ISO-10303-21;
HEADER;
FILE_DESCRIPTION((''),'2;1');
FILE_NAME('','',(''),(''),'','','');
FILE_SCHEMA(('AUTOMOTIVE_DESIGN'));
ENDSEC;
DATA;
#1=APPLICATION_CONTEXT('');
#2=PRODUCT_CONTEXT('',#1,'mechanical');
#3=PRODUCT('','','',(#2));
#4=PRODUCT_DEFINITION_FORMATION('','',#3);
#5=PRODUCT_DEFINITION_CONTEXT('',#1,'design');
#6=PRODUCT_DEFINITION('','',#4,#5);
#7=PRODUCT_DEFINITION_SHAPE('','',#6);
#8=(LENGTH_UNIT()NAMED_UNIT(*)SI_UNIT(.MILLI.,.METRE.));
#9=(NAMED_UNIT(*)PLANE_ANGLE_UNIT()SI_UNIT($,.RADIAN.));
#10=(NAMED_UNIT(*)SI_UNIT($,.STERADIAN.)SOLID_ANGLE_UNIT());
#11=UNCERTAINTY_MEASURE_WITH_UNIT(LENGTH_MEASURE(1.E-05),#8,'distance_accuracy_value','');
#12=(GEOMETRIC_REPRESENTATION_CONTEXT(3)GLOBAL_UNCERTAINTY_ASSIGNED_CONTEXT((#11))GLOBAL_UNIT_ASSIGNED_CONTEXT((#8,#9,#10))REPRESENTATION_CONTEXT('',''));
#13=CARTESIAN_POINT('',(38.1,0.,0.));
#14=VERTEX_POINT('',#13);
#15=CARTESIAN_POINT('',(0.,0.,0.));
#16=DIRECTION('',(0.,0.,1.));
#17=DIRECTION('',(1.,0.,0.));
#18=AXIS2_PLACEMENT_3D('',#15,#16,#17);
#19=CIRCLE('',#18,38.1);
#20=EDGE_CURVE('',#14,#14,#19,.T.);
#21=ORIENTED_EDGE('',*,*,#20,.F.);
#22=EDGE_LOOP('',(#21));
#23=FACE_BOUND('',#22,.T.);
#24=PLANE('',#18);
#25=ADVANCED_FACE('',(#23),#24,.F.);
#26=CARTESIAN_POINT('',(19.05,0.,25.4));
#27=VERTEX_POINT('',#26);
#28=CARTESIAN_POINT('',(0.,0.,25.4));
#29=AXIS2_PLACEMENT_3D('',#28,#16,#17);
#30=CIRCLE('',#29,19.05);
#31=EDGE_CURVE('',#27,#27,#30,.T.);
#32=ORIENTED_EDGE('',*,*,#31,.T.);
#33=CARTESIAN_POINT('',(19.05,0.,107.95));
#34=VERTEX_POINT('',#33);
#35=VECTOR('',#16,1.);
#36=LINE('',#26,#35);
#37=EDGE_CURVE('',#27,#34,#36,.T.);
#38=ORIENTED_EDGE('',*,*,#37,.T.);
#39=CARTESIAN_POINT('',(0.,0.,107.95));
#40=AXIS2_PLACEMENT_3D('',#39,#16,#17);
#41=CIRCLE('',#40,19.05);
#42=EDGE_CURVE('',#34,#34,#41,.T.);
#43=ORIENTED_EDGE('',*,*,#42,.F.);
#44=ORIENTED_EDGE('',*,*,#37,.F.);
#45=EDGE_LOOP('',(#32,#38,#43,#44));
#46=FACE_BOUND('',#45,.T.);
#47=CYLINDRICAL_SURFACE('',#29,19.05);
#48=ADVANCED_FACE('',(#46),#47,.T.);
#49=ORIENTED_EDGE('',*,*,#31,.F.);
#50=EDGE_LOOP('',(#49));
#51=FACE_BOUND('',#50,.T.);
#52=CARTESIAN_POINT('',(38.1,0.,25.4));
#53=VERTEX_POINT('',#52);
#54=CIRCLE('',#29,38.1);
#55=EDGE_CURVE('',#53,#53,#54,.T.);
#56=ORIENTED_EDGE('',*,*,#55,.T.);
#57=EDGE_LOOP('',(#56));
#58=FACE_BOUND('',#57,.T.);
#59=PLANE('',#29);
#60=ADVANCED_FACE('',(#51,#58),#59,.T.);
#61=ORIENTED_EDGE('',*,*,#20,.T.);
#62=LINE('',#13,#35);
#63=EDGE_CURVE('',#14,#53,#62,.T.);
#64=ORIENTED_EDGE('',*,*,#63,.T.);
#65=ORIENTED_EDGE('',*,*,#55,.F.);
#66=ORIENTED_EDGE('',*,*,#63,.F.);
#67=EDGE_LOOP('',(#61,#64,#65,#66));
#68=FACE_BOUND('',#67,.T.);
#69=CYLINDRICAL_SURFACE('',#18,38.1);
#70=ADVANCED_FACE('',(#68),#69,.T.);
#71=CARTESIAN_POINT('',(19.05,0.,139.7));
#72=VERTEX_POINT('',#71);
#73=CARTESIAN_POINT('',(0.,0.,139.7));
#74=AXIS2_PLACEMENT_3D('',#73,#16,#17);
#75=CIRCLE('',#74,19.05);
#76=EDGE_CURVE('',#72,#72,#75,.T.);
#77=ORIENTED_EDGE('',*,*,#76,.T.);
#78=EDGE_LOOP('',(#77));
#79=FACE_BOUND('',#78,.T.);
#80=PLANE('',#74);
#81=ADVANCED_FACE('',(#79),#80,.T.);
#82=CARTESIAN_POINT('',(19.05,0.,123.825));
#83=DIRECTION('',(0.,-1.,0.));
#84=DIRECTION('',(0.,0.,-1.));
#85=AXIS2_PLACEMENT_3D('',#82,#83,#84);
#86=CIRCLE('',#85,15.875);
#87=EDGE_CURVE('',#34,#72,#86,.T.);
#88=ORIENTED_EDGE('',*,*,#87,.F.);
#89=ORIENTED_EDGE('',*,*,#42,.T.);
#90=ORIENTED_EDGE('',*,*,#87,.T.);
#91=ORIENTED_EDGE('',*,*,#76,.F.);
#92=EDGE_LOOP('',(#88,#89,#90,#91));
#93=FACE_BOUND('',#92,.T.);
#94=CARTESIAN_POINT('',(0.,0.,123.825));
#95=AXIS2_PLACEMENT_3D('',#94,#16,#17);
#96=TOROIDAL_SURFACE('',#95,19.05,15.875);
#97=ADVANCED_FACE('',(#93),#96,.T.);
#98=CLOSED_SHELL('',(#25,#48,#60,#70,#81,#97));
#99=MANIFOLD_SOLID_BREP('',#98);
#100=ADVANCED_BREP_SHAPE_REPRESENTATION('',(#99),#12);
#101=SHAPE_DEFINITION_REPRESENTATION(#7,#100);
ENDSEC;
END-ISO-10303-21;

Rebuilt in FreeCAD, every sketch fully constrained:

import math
import FreeCAD as App
import Part
import Sketcher

V = App.Vector
Q = App.Units.Quantity

doc = App.newDocument("Part")
params = doc.addObject("Spreadsheet::Sheet", "Params")
for row, (alias, value) in enumerate([
    ("sketch1_height", "1 in"),
    ("sketch1_width", "1.5 in"),
    ("sketch1_height2", "5.5 in"),
    ("sketch1_radius", "0.625 in"),
    ("revolution_angle", "360 deg"),
], start=1):
    params.set(f"A{row}", alias)
    params.set(f"B{row}", "=" + value)
    params.setAlias(f"B{row}", alias)

body = doc.addObject("PartDesign::Body", "Body")

# Sketch on XZ plane
sketch1 = doc.addObject("Sketcher::SketchObject", "Sketch")
body.addObject(sketch1)
sketch1.AttachmentSupport = (doc.XZ_Plane, [""])
sketch1.MapMode = "FlatFace"
sketch1.addGeometry([
    Part.LineSegment(V(0, 140, 0), V(0, 0, 0)),  # 0
    Part.LineSegment(V(0, 0, 0), V(38, 0, 0)),  # 1
    Part.LineSegment(V(38, 0, 0), V(38, 25, 0)),  # 2
    Part.LineSegment(V(38, 25, 0), V(19, 25, 0)),  # 3
    Part.LineSegment(V(19, 25, 0), V(19, 108, 0)),  # 4
    Part.ArcOfCircle(Part.Circle(V(19, 124, 0), V(0, 0, 1), 16), math.radians(-90), math.radians(90)),  # 5
    Part.LineSegment(V(19, 140, 0), V(0, 140, 0)),  # 6
], False)
sketch1.addConstraint([
    Sketcher.Constraint("Coincident", 0, 2, 1, 1),
    Sketcher.Constraint("Coincident", 1, 2, 2, 1),
    Sketcher.Constraint("Coincident", 2, 2, 3, 1),
    Sketcher.Constraint("Coincident", 3, 2, 4, 1),
    Sketcher.Constraint("Coincident", 4, 2, 5, 1),
    Sketcher.Constraint("Tangent", 5, 2, 6, 1),
    Sketcher.Constraint("Coincident", 6, 2, 0, 1),
    Sketcher.Constraint("Vertical", 0),
    Sketcher.Constraint("Horizontal", 1),
    Sketcher.Constraint("Vertical", 2),
    Sketcher.Constraint("Horizontal", 3),
    Sketcher.Constraint("Vertical", 4),
    Sketcher.Constraint("Horizontal", 6),
    Sketcher.Constraint("Coincident", 0, 2, -1, 1),
    Sketcher.Constraint("Vertical", 5, 3, 3, 2),
    Sketcher.Constraint("Equal", 3, 6),
    Sketcher.Constraint("DistanceY", 2, 1, 2, 2, Q("1 in")),
    Sketcher.Constraint("DistanceX", 1, 1, 1, 2, Q("1.5 in")),
    Sketcher.Constraint("DistanceY", 0, 2, 0, 1, Q("5.5 in")),
    Sketcher.Constraint("Radius", 5, Q("0.625 in")),
])
sketch1.setExpression("Constraints[16]", "Params.sketch1_height")
sketch1.setExpression("Constraints[17]", "Params.sketch1_width")
sketch1.setExpression("Constraints[18]", "Params.sketch1_height2")
sketch1.setExpression("Constraints[19]", "Params.sketch1_radius")
revolution = doc.addObject("PartDesign::Revolution", "Revolution")
body.addObject(revolution)
revolution.Profile = sketch1
revolution.ReferenceAxis = (sketch1, ["V_Axis"])
revolution.setExpression("Angle", "Params.revolution_angle")

doc.recompute()
